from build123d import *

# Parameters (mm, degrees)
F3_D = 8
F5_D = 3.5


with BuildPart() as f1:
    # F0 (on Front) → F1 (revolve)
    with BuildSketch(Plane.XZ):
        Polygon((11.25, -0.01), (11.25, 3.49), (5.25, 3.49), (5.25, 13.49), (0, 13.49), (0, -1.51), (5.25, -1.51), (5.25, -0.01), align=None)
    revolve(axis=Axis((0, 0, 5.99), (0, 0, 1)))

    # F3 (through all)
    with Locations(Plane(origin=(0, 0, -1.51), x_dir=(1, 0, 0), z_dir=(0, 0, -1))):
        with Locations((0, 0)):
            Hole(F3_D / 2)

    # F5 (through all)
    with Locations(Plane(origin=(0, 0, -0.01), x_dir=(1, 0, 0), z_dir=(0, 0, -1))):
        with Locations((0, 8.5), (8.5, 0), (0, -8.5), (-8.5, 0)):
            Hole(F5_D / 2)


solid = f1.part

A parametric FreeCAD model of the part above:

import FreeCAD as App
import Part
import Sketcher
from FreeCAD import Vector


def add_polygon(sketch, points):
    """Adds a closed chain of lines whose ends are joined by coincident constraints."""
    first, n = sketch.GeometryCount, len(points)
    for a, b in zip(points, points[1:] + points[:1]):
        sketch.addGeometry(Part.LineSegment(App.Vector(*a, 0), App.Vector(*b, 0)), False)
    for i in range(n):
        sketch.addConstraint(Sketcher.Constraint("Coincident", first + i, 2, first + (i + 1) % n, 1))

doc = App.newDocument("Part")
body = doc.addObject("PartDesign::Body", "Body")

# Sketch on XZ plane
sketch1 = body.newObject("Sketcher::SketchObject", "Sketch")
sketch1.AttachmentSupport = (doc.getObject("XZ_Plane"), [""])
sketch1.MapMode = "FlatFace"
add_polygon(sketch1, [(11.2, 0), (11.2, 3.5), (5.2, 3.5), (5.2, 13.5), (0, 13.5), (0, -1.5), (5.2, -1.5), (5.2, 0)])  # lines 0-7
sketch1.addConstraint(Sketcher.Constraint("Vertical", 0))
sketch1.addConstraint(Sketcher.Constraint("Horizontal", 1))
sketch1.addConstraint(Sketcher.Constraint("Vertical", 2))
sketch1.addConstraint(Sketcher.Constraint("Horizontal", 3))
sketch1.addConstraint(Sketcher.Constraint("Vertical", 4))
sketch1.addConstraint(Sketcher.Constraint("Horizontal", 5))
sketch1.addConstraint(Sketcher.Constraint("Vertical", 6))
sketch1.addConstraint(Sketcher.Constraint("Horizontal", 7))
sketch1.addConstraint(Sketcher.Constraint("PointOnObject", 3, 2, -2))
sketch1.addConstraint(Sketcher.Constraint("Vertical", 2, 2, 5, 2))
sketch1.addConstraint(Sketcher.Constraint("DistanceX", 1, 2, 1, 1, 6.0))
sketch1.addConstraint(Sketcher.Constraint("DistanceY", 2, 1, 2, 2, 10.0))
sketch1.addConstraint(Sketcher.Constraint("DistanceY", 4, 2, 4, 1, 15.0))
sketch1.addConstraint(Sketcher.Constraint("DistanceY", 0, 1, 0, 2, 3.5))
sketch1.addConstraint(Sketcher.Constraint("DistanceX", 3, 2, 3, 1, 5.25))
sketch1.addConstraint(Sketcher.Constraint("DistanceY", -1, 1, 0, 2, 3.49))
revolution = body.newObject("PartDesign::Revolution", "Revolution")
revolution.Profile = sketch1
revolution.ReferenceAxis = (sketch1, ["V_Axis"])
revolution.Angle = 360

# Sketch on XY plane
sketch2 = body.newObject("Sketcher::SketchObject", "Sketch001")
sketch2.AttachmentSupport = (doc.getObject("XY_Plane"), [""])
sketch2.MapMode = "FlatFace"
sketch2.AttachmentOffset = App.Placement(Vector(0, 0, -1.51), App.Rotation())
sketch2.addGeometry(Part.Circle(Vector(0, 0, 0), Vector(0, 0, 1), 4), False)
sketch2.addConstraint(Sketcher.Constraint("Coincident", 0, 3, -1, 1))
sketch2.addConstraint(Sketcher.Constraint("Diameter", 0, 8.0))
doc.recompute()
hole = body.newObject("PartDesign::Hole", "Hole")
hole.Profile = sketch2
hole.ThreadType = "None"
hole.Diameter = 8
hole.DepthType = "ThroughAll"
hole.Reversed = True

# Sketch on XY plane
sketch3 = body.newObject("Sketcher::SketchObject", "Sketch002")
sketch3.AttachmentSupport = (doc.getObject("XY_Plane"), [""])
sketch3.MapMode = "FlatFace"
sketch3.AttachmentOffset = App.Placement(Vector(0, 0, -0.01), App.Rotation())
sketch3.addGeometry(Part.Circle(Vector(0, -8.5, 0), Vector(0, 0, 1), 1.8), False)
sketch3.addGeometry(Part.Circle(Vector(8.5, 0, 0), Vector(0, 0, 1), 1.8), False)
sketch3.addGeometry(Part.Circle(Vector(0, 8.5, 0), Vector(0, 0, 1), 1.8), False)
sketch3.addGeometry(Part.Circle(Vector(-8.5, 0, 0), Vector(0, 0, 1), 1.8), False)
sketch3.addConstraint(Sketcher.Constraint("Equal", 0, 1))
sketch3.addConstraint(Sketcher.Constraint("Equal", 1, 2))
sketch3.addConstraint(Sketcher.Constraint("Equal", 2, 3))
sketch3.addConstraint(Sketcher.Constraint("Symmetric", 0, 3, 2, 3, -1, 1))
sketch3.addConstraint(Sketcher.Constraint("Symmetric", 1, 3, 3, 3, -1, 1))
sketch3.addConstraint(Sketcher.Constraint("PointOnObject", 0, 3, -2))
sketch3.addConstraint(Sketcher.Constraint("PointOnObject", 1, 3, -1))
sketch3.addConstraint(Sketcher.Constraint("Diameter", 0, 3.5))
sketch3.addConstraint(Sketcher.Constraint("DistanceY", 0, 3, 2, 3, 17.0))
sketch3.addConstraint(Sketcher.Constraint("DistanceX", 3, 3, 1, 3, 17.0))
doc.recompute()
hole2 = body.newObject("PartDesign::Hole", "Hole001")
hole2.Profile = sketch3
hole2.ThreadType = "None"
hole2.Diameter = 3.5
hole2.DepthType = "ThroughAll"
hole2.Reversed = True

doc.recompute()
